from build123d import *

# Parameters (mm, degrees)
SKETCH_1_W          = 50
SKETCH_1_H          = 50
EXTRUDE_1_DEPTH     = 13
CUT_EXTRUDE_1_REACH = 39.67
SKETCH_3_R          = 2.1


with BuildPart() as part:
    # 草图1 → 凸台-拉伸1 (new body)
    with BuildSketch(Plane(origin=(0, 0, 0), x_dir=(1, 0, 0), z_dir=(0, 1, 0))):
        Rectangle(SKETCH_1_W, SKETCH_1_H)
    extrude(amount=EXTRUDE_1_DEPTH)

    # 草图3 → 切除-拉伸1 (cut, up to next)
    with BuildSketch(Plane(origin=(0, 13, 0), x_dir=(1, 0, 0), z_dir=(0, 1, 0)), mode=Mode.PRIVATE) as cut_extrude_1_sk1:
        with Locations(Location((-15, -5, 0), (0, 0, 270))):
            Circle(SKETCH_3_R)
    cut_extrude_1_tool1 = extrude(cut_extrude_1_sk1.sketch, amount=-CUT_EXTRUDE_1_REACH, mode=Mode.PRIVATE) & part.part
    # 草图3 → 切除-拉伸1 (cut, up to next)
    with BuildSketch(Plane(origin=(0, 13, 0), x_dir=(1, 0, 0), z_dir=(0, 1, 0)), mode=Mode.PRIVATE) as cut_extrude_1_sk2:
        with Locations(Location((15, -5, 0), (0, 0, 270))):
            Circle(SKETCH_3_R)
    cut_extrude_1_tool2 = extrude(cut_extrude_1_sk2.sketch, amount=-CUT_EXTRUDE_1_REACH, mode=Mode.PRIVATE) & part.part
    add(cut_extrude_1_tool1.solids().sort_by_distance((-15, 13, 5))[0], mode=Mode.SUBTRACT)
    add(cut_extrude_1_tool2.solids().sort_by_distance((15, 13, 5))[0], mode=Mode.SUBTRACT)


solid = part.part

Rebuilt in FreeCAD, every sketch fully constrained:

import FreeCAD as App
import Part
import Sketcher
Q = App.Units.Quantity


def add_polygon(sketch, points):
    """Adds a closed chain of lines whose ends are joined by coincident constraints."""
    first, n = sketch.GeometryCount, len(points)
    for a, b in zip(points, points[1:] + points[:1]):
        sketch.addGeometry(Part.LineSegment(App.Vector(*a, 0), App.Vector(*b, 0)), False)
    for i in range(n):
        sketch.addConstraint(Sketcher.Constraint("Coincident", first + i, 2, first + (i + 1) % n, 1))

doc = App.newDocument("Part")
body = doc.addObject("PartDesign::Body", "Body")

sketch1 = body.newObject("Sketcher::SketchObject", "Sketch")
sketch1.AttachmentSupport = (doc.getObject("XZ_Plane"), [""])
sketch1.MapMode = "FlatFace"
add_polygon(sketch1, [(-25, -25), (-25, 25), (25, 25), (25, -25)])
sketch1.addConstraint([
    Sketcher.Constraint("Vertical", 0),
    Sketcher.Constraint("Horizontal", 1),
    Sketcher.Constraint("Vertical", 2),
    Sketcher.Constraint("Horizontal", 3),
    Sketcher.Constraint("Symmetric", 0, 2, 2, 2, -1, 1),
    Sketcher.Constraint("Equal", 3, 0),
    Sketcher.Constraint("DistanceX", 1, 1, 1, 2, Q("50 mm")),
])
pad1 = body.newObject("PartDesign::Pad", "Pad")
pad1.Profile = sketch1
pad1.Length = 13
pad1.Reversed = True

sketch2 = body.newObject("Sketcher::SketchObject", "Sketch001")
sketch2.AttachmentSupport = (doc.getObject("XZ_Plane"), [""])
sketch2.MapMode = "FlatFace"
sketch2.AttachmentOffset = App.Placement(App.Vector(0, 0, -13), App.Rotation())
sketch2.addGeometry(Part.Circle(App.Vector(-15, 5, 0), App.Vector(0, 0, 1), 2.1), False)
sketch2.addConstraint([
    Sketcher.Constraint("Diameter", 0, Q("4.2 mm")),
    Sketcher.Constraint("DistanceX", 0, 3, -1, 1, Q("15 mm")),
    Sketcher.Constraint("DistanceY", -1, 1, 0, 3, Q("5 mm")),
])
pocket1 = body.newObject("PartDesign::Pocket", "Pocket")
pocket1.Profile = sketch2
pocket1.Type = "UpToFirst"
pocket1.Reversed = True

sketch3 = body.newObject("Sketcher::SketchObject", "Sketch002")
sketch3.AttachmentSupport = (doc.getObject("XZ_Plane"), [""])
sketch3.MapMode = "FlatFace"
sketch3.AttachmentOffset = App.Placement(App.Vector(0, 0, -13), App.Rotation())
sketch3.addGeometry(Part.Circle(App.Vector(15, 5, 0), App.Vector(0, 0, 1), 2.1), False)
sketch3.addConstraint([
    Sketcher.Constraint("Diameter", 0, Q("4.2 mm")),
    Sketcher.Constraint("DistanceX", -1, 1, 0, 3, Q("15 mm")),
    Sketcher.Constraint("DistanceY", -1, 1, 0, 3, Q("5 mm")),
])
pocket2 = body.newObject("PartDesign::Pocket", "Pocket001")
pocket2.Profile = sketch3
pocket2.Type = "UpToFirst"
pocket2.Reversed = True

doc.recompute()
